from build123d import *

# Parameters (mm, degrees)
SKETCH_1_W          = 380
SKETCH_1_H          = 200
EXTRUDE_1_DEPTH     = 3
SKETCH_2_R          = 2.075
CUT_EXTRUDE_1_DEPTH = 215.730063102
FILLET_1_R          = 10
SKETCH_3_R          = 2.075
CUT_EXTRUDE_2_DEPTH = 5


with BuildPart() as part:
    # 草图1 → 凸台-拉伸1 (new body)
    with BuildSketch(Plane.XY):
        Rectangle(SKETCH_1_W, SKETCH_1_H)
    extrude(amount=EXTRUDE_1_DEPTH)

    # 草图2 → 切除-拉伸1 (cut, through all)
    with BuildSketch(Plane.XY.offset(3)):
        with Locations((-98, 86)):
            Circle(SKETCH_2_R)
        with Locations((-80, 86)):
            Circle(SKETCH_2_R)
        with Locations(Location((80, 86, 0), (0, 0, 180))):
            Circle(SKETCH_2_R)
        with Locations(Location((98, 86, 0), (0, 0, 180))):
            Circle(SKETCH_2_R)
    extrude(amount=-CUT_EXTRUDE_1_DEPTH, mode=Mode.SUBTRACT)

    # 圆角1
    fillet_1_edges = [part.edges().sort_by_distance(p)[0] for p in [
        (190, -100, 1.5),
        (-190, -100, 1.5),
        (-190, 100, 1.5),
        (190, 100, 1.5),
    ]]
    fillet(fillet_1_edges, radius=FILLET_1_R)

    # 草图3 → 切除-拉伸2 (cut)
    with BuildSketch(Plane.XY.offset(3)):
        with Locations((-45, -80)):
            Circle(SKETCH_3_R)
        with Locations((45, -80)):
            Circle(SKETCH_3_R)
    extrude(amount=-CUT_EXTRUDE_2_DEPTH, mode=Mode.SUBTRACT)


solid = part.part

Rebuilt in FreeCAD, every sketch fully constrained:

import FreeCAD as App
import Part
import Sketcher


def edges_at(feature, points):
    """Names of the edges that pass closest to the given points."""
    edges = feature.Shape.Edges
    near = lambda p: min(range(len(edges)), key=lambda i: edges[i].distToShape(Part.Vertex(*p))[0])
    return sorted({f"Edge{near(p) + 1}" for p in points})


def add_polygon(sketch, points):
    """Adds a closed chain of lines whose ends are joined by coincident constraints."""
    first, n = sketch.GeometryCount, len(points)
    for a, b in zip(points, points[1:] + points[:1]):
        sketch.addGeometry(Part.LineSegment(App.Vector(*a, 0), App.Vector(*b, 0)), False)
    for i in range(n):
        sketch.addConstraint(Sketcher.Constraint("Coincident", first + i, 2, first + (i + 1) % n, 1))

doc = App.newDocument("Part")
body = doc.addObject("PartDesign::Body", "Body")

# Sketch on XY plane
sketch1 = doc.addObject("Sketcher::SketchObject", "Sketch")
body.addObject(sketch1)
sketch1.AttachmentSupport = (doc.XY_Plane, [""])
sketch1.MapMode = "FlatFace"
add_polygon(sketch1, [(-190, 100), (-190, -100), (190, -100), (190, 100)])  # lines 0-3
sketch1.addConstraint([
    Sketcher.Constraint("Vertical", 0),
    Sketcher.Constraint("Horizontal", 1),
    Sketcher.Constraint("Vertical", 2),
    Sketcher.Constraint("Horizontal", 3),
    Sketcher.Constraint("Symmetric", 0, 2, 2, 2, -1, 1),
    Sketcher.Constraint("DistanceX", 1, 1, 1, 2, 380.0),
    Sketcher.Constraint("DistanceY", 0, 2, 0, 1, 200.0),
])
pad1 = doc.addObject("PartDesign::Pad", "Pad")
body.addObject(pad1)
pad1.Profile = sketch1
pad1.Length = 3

# Sketch on XY plane
sketch2 = doc.addObject("Sketcher::SketchObject", "Sketch001")
body.addObject(sketch2)
sketch2.AttachmentSupport = (doc.XY_Plane, [""])
sketch2.MapMode = "FlatFace"
sketch2.AttachmentOffset = App.Placement(App.Vector(0, 0, 3), App.Rotation())
sketch2.addGeometry([
    Part.Circle(App.Vector(-98, 86, 0), App.Vector(0, 0, 1), 2.075),
    Part.Circle(App.Vector(-80, 86, 0), App.Vector(0, 0, 1), 2.075),
    Part.Circle(App.Vector(80, 86, 0), App.Vector(0, 0, 1), 2.075),
    Part.Circle(App.Vector(98, 86, 0), App.Vector(0, 0, 1), 2.075),
], False)
sketch2.addConstraint([
    Sketcher.Constraint("Equal", 0, 1),
    Sketcher.Constraint("Equal", 1, 2),
    Sketcher.Constraint("Equal", 2, 3),
    Sketcher.Constraint("Symmetric", 1, 3, 2, 3, -2),
    Sketcher.Constraint("Symmetric", 0, 3, 3, 3, -2),
    Sketcher.Constraint("Horizontal", 0, 3, 1, 3),
    Sketcher.Constraint("Diameter", 0, 4.15),
    Sketcher.Constraint("DistanceX", 0, 3, -1, 1, 98.0),
    Sketcher.Constraint("DistanceY", -1, 1, 0, 3, 86.0),
    Sketcher.Constraint("DistanceX", 1, 3, -1, 1, 80.0),
])
pocket1 = doc.addObject("PartDesign::Pocket", "Pocket")
body.addObject(pocket1)
pocket1.Profile = sketch2
pocket1.Type = "ThroughAll"
doc.recompute()

fillet = doc.addObject("PartDesign::Fillet", "Fillet")
body.addObject(fillet)
fillet.Base = (pocket1, edges_at(pocket1, [
    (190, -100, 1.5),
    (-190, -100, 1.5),
    (-190, 100, 1.5),
    (190, 100, 1.5),
]))
fillet.Radius = 10

# Sketch on XY plane
sketch3 = doc.addObject("Sketcher::SketchObject", "Sketch002")
body.addObject(sketch3)
sketch3.AttachmentSupport = (doc.XY_Plane, [""])
sketch3.MapMode = "FlatFace"
sketch3.AttachmentOffset = App.Placement(App.Vector(0, 0, 3), App.Rotation())
sketch3.addGeometry([
    Part.Circle(App.Vector(-45, -80, 0), App.Vector(0, 0, 1), 2.075),
    Part.Circle(App.Vector(45, -80, 0), App.Vector(0, 0, 1), 2.075),
], False)
sketch3.addConstraint([
    Sketcher.Constraint("Equal", 0, 1),
    Sketcher.Constraint("Symmetric", 0, 3, 1, 3, -2),
    Sketcher.Constraint("Diameter", 0, 4.15),
    Sketcher.Constraint("DistanceX", 0, 3, -1, 1, 45.0),
    Sketcher.Constraint("DistanceY", 0, 3, -1, 1, 80.0),
])
pocket2 = doc.addObject("PartDesign::Pocket", "Pocket001")
body.addObject(pocket2)
pocket2.Profile = sketch3
pocket2.Length = 5

doc.recompute()
